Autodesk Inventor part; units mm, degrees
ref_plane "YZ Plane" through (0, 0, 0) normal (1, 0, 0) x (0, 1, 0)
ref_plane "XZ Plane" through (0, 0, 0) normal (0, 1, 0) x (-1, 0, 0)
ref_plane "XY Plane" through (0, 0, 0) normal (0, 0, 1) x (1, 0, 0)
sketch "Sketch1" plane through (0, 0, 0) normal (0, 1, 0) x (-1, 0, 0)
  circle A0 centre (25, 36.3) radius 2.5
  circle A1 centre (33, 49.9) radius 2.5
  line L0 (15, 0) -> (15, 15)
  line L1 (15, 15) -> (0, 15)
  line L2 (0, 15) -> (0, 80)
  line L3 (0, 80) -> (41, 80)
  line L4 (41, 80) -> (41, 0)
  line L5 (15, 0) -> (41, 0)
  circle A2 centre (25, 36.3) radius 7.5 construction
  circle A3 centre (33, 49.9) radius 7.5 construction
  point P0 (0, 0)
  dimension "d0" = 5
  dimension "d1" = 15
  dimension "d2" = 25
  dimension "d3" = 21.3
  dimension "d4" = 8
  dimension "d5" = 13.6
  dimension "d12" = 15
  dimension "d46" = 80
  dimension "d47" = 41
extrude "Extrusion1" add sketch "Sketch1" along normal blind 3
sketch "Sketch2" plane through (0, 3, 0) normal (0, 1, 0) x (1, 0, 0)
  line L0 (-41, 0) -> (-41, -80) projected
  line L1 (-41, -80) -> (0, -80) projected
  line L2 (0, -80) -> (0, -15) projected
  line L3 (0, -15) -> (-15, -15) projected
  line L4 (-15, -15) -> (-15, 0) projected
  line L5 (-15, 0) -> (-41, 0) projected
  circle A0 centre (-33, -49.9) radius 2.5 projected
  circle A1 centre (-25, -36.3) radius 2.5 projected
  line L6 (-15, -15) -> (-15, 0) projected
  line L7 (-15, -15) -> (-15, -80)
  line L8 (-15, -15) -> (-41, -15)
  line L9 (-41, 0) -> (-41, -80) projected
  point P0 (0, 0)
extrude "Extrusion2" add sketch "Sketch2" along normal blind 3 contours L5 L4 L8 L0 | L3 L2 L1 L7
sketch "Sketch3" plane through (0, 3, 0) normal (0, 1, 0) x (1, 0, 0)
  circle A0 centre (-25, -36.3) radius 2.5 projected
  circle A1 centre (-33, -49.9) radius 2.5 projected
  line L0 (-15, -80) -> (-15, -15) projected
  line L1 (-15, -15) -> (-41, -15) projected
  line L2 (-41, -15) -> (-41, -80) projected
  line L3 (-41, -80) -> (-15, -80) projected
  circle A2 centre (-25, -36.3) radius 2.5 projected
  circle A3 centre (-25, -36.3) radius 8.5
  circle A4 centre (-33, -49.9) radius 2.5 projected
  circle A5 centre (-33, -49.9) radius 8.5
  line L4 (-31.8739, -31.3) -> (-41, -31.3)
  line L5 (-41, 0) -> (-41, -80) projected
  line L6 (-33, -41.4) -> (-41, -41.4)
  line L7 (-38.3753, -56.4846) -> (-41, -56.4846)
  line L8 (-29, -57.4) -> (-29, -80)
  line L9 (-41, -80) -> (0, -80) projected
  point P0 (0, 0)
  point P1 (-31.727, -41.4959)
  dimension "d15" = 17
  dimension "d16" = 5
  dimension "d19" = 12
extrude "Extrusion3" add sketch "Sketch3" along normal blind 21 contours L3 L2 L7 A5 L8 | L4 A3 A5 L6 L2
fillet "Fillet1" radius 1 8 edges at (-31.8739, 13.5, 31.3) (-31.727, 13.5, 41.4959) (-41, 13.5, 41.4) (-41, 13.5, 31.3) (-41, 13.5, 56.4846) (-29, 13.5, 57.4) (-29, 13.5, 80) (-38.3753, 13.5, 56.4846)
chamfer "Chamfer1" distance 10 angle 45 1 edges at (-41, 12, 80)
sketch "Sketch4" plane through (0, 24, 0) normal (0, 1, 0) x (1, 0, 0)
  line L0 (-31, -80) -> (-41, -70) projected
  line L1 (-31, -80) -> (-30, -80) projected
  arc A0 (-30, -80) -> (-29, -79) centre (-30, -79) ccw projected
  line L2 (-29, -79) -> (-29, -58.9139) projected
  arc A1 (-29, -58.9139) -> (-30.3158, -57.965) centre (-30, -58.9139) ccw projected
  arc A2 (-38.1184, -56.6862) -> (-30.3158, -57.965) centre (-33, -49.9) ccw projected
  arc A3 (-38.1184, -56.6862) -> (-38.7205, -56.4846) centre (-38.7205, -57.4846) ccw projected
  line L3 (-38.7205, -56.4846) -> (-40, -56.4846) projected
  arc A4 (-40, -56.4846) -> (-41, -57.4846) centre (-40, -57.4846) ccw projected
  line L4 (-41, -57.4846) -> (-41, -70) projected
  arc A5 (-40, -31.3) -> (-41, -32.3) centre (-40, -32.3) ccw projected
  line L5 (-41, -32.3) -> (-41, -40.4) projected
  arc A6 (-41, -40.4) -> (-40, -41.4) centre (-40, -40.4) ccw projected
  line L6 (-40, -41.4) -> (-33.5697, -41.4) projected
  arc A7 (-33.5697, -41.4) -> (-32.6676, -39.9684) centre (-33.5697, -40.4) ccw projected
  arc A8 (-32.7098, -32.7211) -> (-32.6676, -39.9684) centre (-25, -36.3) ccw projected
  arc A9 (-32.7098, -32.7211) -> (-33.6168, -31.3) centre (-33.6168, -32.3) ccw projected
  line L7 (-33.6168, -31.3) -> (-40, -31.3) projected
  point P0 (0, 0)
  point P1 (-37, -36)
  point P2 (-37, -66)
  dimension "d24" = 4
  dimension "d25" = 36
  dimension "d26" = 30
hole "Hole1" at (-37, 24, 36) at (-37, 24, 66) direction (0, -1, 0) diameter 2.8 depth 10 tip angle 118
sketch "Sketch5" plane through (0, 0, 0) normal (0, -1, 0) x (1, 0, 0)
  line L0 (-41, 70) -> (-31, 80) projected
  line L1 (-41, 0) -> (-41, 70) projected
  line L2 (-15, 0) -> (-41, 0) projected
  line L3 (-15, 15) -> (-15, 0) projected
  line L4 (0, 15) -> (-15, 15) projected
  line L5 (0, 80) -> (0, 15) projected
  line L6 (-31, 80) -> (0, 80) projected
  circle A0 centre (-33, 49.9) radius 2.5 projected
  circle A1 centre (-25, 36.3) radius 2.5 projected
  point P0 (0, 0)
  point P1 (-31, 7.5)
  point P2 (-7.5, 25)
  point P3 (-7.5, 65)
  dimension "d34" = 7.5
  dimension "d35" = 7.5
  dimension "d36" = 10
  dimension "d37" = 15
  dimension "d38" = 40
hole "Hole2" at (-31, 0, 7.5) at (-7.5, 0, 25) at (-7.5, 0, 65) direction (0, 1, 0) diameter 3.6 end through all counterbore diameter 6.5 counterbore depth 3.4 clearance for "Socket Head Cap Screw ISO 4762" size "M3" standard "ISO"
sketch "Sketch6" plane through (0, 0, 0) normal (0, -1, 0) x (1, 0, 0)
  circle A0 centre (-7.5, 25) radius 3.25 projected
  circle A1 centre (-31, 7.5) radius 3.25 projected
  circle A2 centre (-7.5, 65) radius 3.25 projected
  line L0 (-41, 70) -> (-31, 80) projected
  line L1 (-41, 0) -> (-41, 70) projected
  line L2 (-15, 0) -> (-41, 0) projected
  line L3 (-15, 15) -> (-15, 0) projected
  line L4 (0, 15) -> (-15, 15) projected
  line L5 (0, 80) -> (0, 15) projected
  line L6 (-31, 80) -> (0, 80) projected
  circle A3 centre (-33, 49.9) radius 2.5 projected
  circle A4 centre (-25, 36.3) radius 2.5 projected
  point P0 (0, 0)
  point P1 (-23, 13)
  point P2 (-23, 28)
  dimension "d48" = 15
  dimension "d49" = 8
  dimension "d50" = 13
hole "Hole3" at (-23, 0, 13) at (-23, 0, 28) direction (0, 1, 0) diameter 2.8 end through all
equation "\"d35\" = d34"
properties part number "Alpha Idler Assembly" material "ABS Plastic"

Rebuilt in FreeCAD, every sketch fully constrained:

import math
import FreeCAD as App
import Part
import Sketcher
from FreeCAD import Vector


def edges_at(feature, points):
    """Names of the edges that pass closest to the given points."""
    edges = feature.Shape.Edges
    near = lambda p: min(range(len(edges)), key=lambda i: edges[i].distToShape(Part.Vertex(*p))[0])
    return sorted({f"Edge{near(p) + 1}" for p in points})


def add_polygon(sketch, points):
    """Adds a closed chain of lines whose ends are joined by coincident constraints."""
    first, n = sketch.GeometryCount, len(points)
    for a, b in zip(points, points[1:] + points[:1]):
        sketch.addGeometry(Part.LineSegment(App.Vector(*a, 0), App.Vector(*b, 0)), False)
    for i in range(n):
        sketch.addConstraint(Sketcher.Constraint("Coincident", first + i, 2, first + (i + 1) % n, 1))

doc = App.newDocument("Part")
body = doc.addObject("PartDesign::Body", "Body")

# Sketch on XZ plane
sketch1 = body.newObject("Sketcher::SketchObject", "Sketch")
sketch1.AttachmentSupport = (doc.getObject("XZ_Plane"), [""])
sketch1.MapMode = "FlatFace"
add_polygon(sketch1, [(-15, 15), (-15, 0), (-41, 0), (-41, 80), (0, 80), (0, 15)])  # lines 0-5
sketch1.addGeometry(Part.Circle(Vector(-25, 36.3, 0), Vector(0, 0, 1), 2.5), False)  # 6
sketch1.addGeometry(Part.Circle(Vector(-33, 49.9, 0), Vector(0, 0, 1), 2.5), False)  # 7
sketch1.addConstraint([
    Sketcher.Constraint("Vertical", 0),
    Sketcher.Constraint("Horizontal", 1),
    Sketcher.Constraint("Vertical", 2),
    Sketcher.Constraint("Horizontal", 3),
    Sketcher.Constraint("Vertical", 4),
    Sketcher.Constraint("Horizontal", 5),
    Sketcher.Constraint("Equal", 6, 7),
    Sketcher.Constraint("PointOnObject", 0, 2, -1),
    Sketcher.Constraint("PointOnObject", 3, 2, -2),
    Sketcher.Constraint("Equal", 5, 0),
    Sketcher.Constraint("Diameter", 6, 5.0),
    Sketcher.Constraint("DistanceX", 3, 1, 3, 2, 41.0),
    Sketcher.Constraint("DistanceX", 5, 2, 5, 1, 15.0),
    Sketcher.Constraint("DistanceY", 2, 1, 2, 2, 80.0),
    Sketcher.Constraint("DistanceX", 6, 3, -1, 1, 25.0),
    Sketcher.Constraint("DistanceX", 7, 3, 6, 3, 8.0),
    Sketcher.Constraint("DistanceY", 6, 3, 7, 3, 13.6),
    Sketcher.Constraint("DistanceY", 4, 2, 6, 3, 21.3),
])
pad1 = body.newObject("PartDesign::Pad", "Pad")
pad1.Profile = sketch1
pad1.Length = 3
pad1.Reversed = True

# Sketch on XZ plane
sketch2 = body.newObject("Sketcher::SketchObject", "Sketch001")
sketch2.AttachmentSupport = (doc.getObject("XZ_Plane"), [""])
sketch2.MapMode = "FlatFace"
sketch2.AttachmentOffset = App.Placement(Vector(0, 0, -3), App.Rotation())
add_polygon(sketch2, [(-15, 0), (-41, 0), (-41, 15), (-15, 15)])  # lines 0-3
add_polygon(sketch2, [(0, 15), (-15, 15), (-15, 80), (0, 80)])  # lines 4-7
sketch2.addConstraint([
    Sketcher.Constraint("Horizontal", 0),
    Sketcher.Constraint("Vertical", 1),
    Sketcher.Constraint("Horizontal", 2),
    Sketcher.Constraint("Vertical", 3),
    Sketcher.Constraint("Horizontal", 4),
    Sketcher.Constraint("Vertical", 5),
    Sketcher.Constraint("Horizontal", 6),
    Sketcher.Constraint("Vertical", 7),
    Sketcher.Constraint("Coincident", 4, 2, 2, 2),
    Sketcher.Constraint("PointOnObject", 0, 2, -1),
    Sketcher.Constraint("PointOnObject", 6, 2, -2),
    Sketcher.Constraint("Equal", 6, 1),
    Sketcher.Constraint("DistanceX", 0, 2, 0, 1, 26.0),
    Sketcher.Constraint("DistanceX", 4, 2, 4, 1, 15.0),
    Sketcher.Constraint("DistanceY", 5, 1, 5, 2, 65.0),
])
pad2 = body.newObject("PartDesign::Pad", "Pad001")
pad2.Profile = sketch2
pad2.Length = 3
pad2.Reversed = True

# Sketch on XZ plane
sketch3 = body.newObject("Sketcher::SketchObject", "Sketch002")
sketch3.AttachmentSupport = (doc.getObject("XZ_Plane"), [""])
sketch3.MapMode = "FlatFace"
sketch3.AttachmentOffset = App.Placement(Vector(0, 0, -3), App.Rotation())
sketch3.addGeometry([
    Part.LineSegment(Vector(-41, 80, 0), Vector(-29, 80, 0)),  # 0
    Part.LineSegment(Vector(-29, 80, 0), Vector(-29, 57.4, 0)),  # 1
    Part.ArcOfCircle(Part.Circle(Vector(-33, 49.9, 0), Vector(0, 0, 1), 8.5), math.radians(62), math.radians(129)),  # 2
    Part.LineSegment(Vector(-38.4, 56.5, 0), Vector(-41, 56.5, 0)),  # 3
    Part.LineSegment(Vector(-41, 56.5, 0), Vector(-41, 80, 0)),  # 4
    Part.LineSegment(Vector(-31.9, 31.3, 0), Vector(-41, 31.3, 0)),  # 5
    Part.LineSegment(Vector(-41, 31.3, 0), Vector(-41, 41.4, 0)),  # 6
    Part.LineSegment(Vector(-41, 41.4, 0), Vector(-33, 41.4, 0)),  # 7
    Part.ArcOfCircle(Part.Circle(Vector(-33, 49.9, 0), Vector(0, 0, 1), 8.5), math.radians(-90), math.radians(-81.39)),  # 8
    Part.ArcOfCircle(Part.Circle(Vector(-25, 36.3, 0), Vector(0, 0, 1), 8.5), math.radians(142), math.radians(216)),  # 9
], False)
sketch3.addConstraint([
    Sketcher.Constraint("Coincident", 0, 2, 1, 1),
    Sketcher.Constraint("Coincident", 1, 2, 2, 1),
    Sketcher.Constraint("Coincident", 2, 2, 3, 1),
    Sketcher.Constraint("Coincident", 3, 2, 4, 1),
    Sketcher.Constraint("Coincident", 4, 2, 0, 1),
    Sketcher.Constraint("Coincident", 5, 2, 6, 1),
    Sketcher.Constraint("Coincident", 6, 2, 7, 1),
    Sketcher.Constraint("Tangent", 7, 2, 8, 1),
    Sketcher.Constraint("Coincident", 8, 2, 9, 1),
    Sketcher.Constraint("Coincident", 9, 2, 5, 1),
    Sketcher.Constraint("Horizontal", 0),
    Sketcher.Constraint("Vertical", 1),
    Sketcher.Constraint("Horizontal", 3),
    Sketcher.Constraint("Vertical", 4),
    Sketcher.Constraint("Horizontal", 5),
    Sketcher.Constraint("Vertical", 6),
    Sketcher.Constraint("Horizontal", 7),
    Sketcher.Constraint("Coincident", 8, 3, 2, 3),
    Sketcher.Constraint("Equal", 2, 8),
    Sketcher.Constraint("Equal", 8, 9),
    Sketcher.Constraint("Vertical", 4, 2, 5, 2),
    Sketcher.Constraint("Radius", 2, 8.5),
    Sketcher.Constraint("DistanceX", 0, 1, 0, 2, 12.0),
    Sketcher.Constraint("DistanceY", 5, 2, 9, 3, 5.0),
    Sketcher.Constraint("DistanceX", 7, 1, 7, 2, 8.0),
    Sketcher.Constraint("DistanceY", 1, 2, 1, 1, 22.6),
    Sketcher.Constraint("DistanceY", 6, 1, 6, 2, 10.1),
    Sketcher.Constraint("DistanceX", 2, 3, -1, 1, 33.0),
    Sketcher.Constraint("DistanceX", 9, 3, -1, 1, 25.0),
    Sketcher.Constraint("DistanceY", -1, 1, 0, 2, 80.0),
    Sketcher.Constraint("DistanceX", 3, 2, 3, 1, 2.6247),
])
pad3 = body.newObject("PartDesign::Pad", "Pad002")
pad3.Profile = sketch3
pad3.Length = 21
pad3.Reversed = True
doc.recompute()

fillet = body.newObject("PartDesign::Fillet", "Fillet")
fillet.Base = (pad3, edges_at(pad3, [
    (-31.874, 13.5, 31.3),
    (-31.727, 13.5, 41.496),
    (-41, 13.5, 41.4),
    (-41, 13.5, 31.3),
    (-41, 13.5, 56.485),
    (-29, 13.5, 57.4),
    (-29, 13.5, 80),
    (-38.375, 13.5, 56.485),
]))
fillet.Radius = 1
doc.recompute()

chamfer = body.newObject("PartDesign::Chamfer", "Chamfer")
chamfer.Base = (fillet, edges_at(fillet, [(-41, 12, 80)]))
chamfer.Size = 10

# Sketch on XZ plane
sketch4 = body.newObject("Sketcher::SketchObject", "Sketch003")
sketch4.AttachmentSupport = (doc.getObject("XZ_Plane"), [""])
sketch4.MapMode = "FlatFace"
sketch4.AttachmentOffset = App.Placement(Vector(0, 0, -24), App.Rotation())
sketch4.addGeometry([
    Part.Circle(Vector(-37, 36, 0), Vector(0, 0, 1), 1.4),
    Part.Circle(Vector(-37, 66, 0), Vector(0, 0, 1), 1.4),
], False)
sketch4.addConstraint([
    Sketcher.Constraint("Equal", 0, 1),
    Sketcher.Constraint("Vertical", 0, 3, 1, 3),
    Sketcher.Constraint("Diameter", 0, 2.8),
    Sketcher.Constraint("DistanceX", 0, 3, -1, 1, 37.0),
    Sketcher.Constraint("DistanceY", -1, 1, 0, 3, 36.0),
    Sketcher.Constraint("DistanceY", -1, 1, 1, 3, 66.0),
])
doc.recompute()
hole = body.newObject("PartDesign::Hole", "Hole")
hole.Profile = sketch4
hole.ThreadType = "None"
hole.Diameter = 2.8
hole.DepthType = "Dimension"
hole.Depth = 10
hole.DrillPoint = "Angled"
hole.DrillPointAngle = 118
hole.Reversed = True

# Sketch on XZ plane
sketch5 = body.newObject("Sketcher::SketchObject", "Sketch004")
sketch5.AttachmentSupport = (doc.getObject("XZ_Plane"), [""])
sketch5.MapMode = "FlatFace"
sketch5.addGeometry([
    Part.Circle(Vector(-31, 7.5, 0), Vector(0, 0, 1), 1.8),
    Part.Circle(Vector(-7.5, 25, 0), Vector(0, 0, 1), 1.8),
    Part.Circle(Vector(-7.5, 65, 0), Vector(0, 0, 1), 1.8),
], False)
sketch5.addConstraint([
    Sketcher.Constraint("Equal", 0, 1),
    Sketcher.Constraint("Equal", 1, 2),
    Sketcher.Constraint("Vertical", 1, 3, 2, 3),
    Sketcher.Constraint("Diameter", 0, 3.6),
    Sketcher.Constraint("DistanceX", 0, 3, -1, 1, 31.0),
    Sketcher.Constraint("DistanceY", -1, 1, 1, 3, 25.0),
    Sketcher.Constraint("DistanceY", -1, 1, 2, 3, 65.0),
    Sketcher.Constraint("DistanceY", -1, 1, 0, 3, 7.5),
    Sketcher.Constraint("DistanceX", 1, 3, -1, 1, 7.5),
])
doc.recompute()
hole2 = body.newObject("PartDesign::Hole", "Hole001")
hole2.Profile = sketch5
hole2.ThreadType = "None"
hole2.Diameter = 3.6
hole2.DepthType = "ThroughAll"
hole2.HoleCutType = "Counterbore"
hole2.HoleCutDiameter = 6.5
hole2.HoleCutDepth = 3.4

# Sketch on XZ plane
sketch6 = body.newObject("Sketcher::SketchObject", "Sketch005")
sketch6.AttachmentSupport = (doc.getObject("XZ_Plane"), [""])
sketch6.MapMode = "FlatFace"
sketch6.addGeometry([
    Part.Circle(Vector(-23, 13, 0), Vector(0, 0, 1), 1.4),
    Part.Circle(Vector(-23, 28, 0), Vector(0, 0, 1), 1.4),
], False)
sketch6.addConstraint([
    Sketcher.Constraint("Equal", 0, 1),
    Sketcher.Constraint("Vertical", 0, 3, 1, 3),
    Sketcher.Constraint("Diameter", 0, 2.8),
    Sketcher.Constraint("DistanceX", 0, 3, -1, 1, 23.0),
    Sketcher.Constraint("DistanceY", -1, 1, 0, 3, 13.0),
    Sketcher.Constraint("DistanceY", -1, 1, 1, 3, 28.0),
])
doc.recompute()
hole3 = body.newObject("PartDesign::Hole", "Hole002")
hole3.Profile = sketch6
hole3.ThreadType = "None"
hole3.Diameter = 2.8
hole3.DepthType = "ThroughAll"

doc.recompute()
